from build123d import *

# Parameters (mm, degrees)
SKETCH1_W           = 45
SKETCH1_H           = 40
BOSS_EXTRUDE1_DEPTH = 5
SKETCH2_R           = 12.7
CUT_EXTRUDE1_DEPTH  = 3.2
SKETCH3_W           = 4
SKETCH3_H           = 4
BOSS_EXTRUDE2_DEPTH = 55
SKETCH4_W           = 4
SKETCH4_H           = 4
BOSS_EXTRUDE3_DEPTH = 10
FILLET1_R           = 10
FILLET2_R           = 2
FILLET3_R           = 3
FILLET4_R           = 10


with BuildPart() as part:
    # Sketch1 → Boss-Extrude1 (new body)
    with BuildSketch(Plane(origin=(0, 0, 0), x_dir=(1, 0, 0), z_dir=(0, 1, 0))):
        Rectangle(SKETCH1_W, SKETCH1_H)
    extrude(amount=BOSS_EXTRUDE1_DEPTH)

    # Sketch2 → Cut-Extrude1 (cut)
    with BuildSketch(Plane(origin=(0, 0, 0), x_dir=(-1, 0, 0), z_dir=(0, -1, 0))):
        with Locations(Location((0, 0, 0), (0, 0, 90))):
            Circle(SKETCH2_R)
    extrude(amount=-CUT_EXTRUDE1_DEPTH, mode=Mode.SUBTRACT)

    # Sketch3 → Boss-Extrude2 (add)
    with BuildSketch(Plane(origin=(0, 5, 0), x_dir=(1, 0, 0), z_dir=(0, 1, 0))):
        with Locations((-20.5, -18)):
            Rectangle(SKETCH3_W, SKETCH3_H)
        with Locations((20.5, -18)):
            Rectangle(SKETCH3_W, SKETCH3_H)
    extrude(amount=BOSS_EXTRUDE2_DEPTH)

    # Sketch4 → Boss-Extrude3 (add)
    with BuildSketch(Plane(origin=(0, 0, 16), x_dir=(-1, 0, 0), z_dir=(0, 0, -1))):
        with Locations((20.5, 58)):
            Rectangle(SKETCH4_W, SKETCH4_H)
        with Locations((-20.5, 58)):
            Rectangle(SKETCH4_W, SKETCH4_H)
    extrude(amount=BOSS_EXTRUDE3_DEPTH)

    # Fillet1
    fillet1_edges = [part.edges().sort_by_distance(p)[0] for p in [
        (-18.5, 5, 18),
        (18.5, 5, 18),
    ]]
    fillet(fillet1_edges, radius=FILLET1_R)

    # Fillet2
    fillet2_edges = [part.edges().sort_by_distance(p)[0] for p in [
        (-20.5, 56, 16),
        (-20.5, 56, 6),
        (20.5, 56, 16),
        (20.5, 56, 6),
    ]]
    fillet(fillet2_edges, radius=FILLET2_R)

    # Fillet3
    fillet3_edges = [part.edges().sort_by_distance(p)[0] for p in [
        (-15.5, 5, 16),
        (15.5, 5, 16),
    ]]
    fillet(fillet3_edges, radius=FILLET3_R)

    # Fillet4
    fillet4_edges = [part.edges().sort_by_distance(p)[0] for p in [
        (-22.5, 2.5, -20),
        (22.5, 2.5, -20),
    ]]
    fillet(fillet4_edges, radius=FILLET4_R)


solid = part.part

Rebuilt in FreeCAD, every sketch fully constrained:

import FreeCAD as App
import Part
import Sketcher


def edges_at(feature, points):
    """Names of the edges that pass closest to the given points."""
    edges = feature.Shape.Edges
    near = lambda p: min(range(len(edges)), key=lambda i: edges[i].distToShape(Part.Vertex(*p))[0])
    return sorted({f"Edge{near(p) + 1}" for p in points})


def add_polygon(sketch, points):
    """Adds a closed chain of lines whose ends are joined by coincident constraints."""
    first, n = sketch.GeometryCount, len(points)
    for a, b in zip(points, points[1:] + points[:1]):
        sketch.addGeometry(Part.LineSegment(App.Vector(*a, 0), App.Vector(*b, 0)), False)
    for i in range(n):
        sketch.addConstraint(Sketcher.Constraint("Coincident", first + i, 2, first + (i + 1) % n, 1))

doc = App.newDocument("Part")
body = doc.addObject("PartDesign::Body", "Body")

sketch1 = body.newObject("Sketcher::SketchObject", "Sketch")
sketch1.AttachmentSupport = (doc.getObject("XZ_Plane"), [""])
sketch1.MapMode = "FlatFace"
add_polygon(sketch1, [(-22, -20), (-22, 20), (22, 20), (22, -20)])
sketch1.addConstraint([
    Sketcher.Constraint("Vertical", 0),
    Sketcher.Constraint("Horizontal", 1),
    Sketcher.Constraint("Vertical", 2),
    Sketcher.Constraint("Horizontal", 3),
    Sketcher.Constraint("Symmetric", 0, 2, 2, 2, -1, 1),
    Sketcher.Constraint("DistanceX", 1, 1, 1, 2, 45.0),
    Sketcher.Constraint("DistanceY", 0, 1, 0, 2, 40.0),
])
pad1 = body.newObject("PartDesign::Pad", "Pad")
pad1.Profile = sketch1
pad1.Length = 5
pad1.Reversed = True

sketch2 = body.newObject("Sketcher::SketchObject", "Sketch001")
sketch2.AttachmentSupport = (doc.getObject("XZ_Plane"), [""])
sketch2.MapMode = "FlatFace"
sketch2.addGeometry(Part.Circle(App.Vector(0, 0, 0), App.Vector(0, 0, 1), 13), False)
sketch2.addConstraint([
    Sketcher.Constraint("Coincident", 0, 3, -1, 1),
    Sketcher.Constraint("Diameter", 0, 25.4),
])
pocket1 = body.newObject("PartDesign::Pocket", "Pocket")
pocket1.Profile = sketch2
pocket1.Length = 3.2

sketch3 = body.newObject("Sketcher::SketchObject", "Sketch002")
sketch3.AttachmentSupport = (doc.getObject("XZ_Plane"), [""])
sketch3.MapMode = "FlatFace"
sketch3.AttachmentOffset = App.Placement(App.Vector(0, 0, -5), App.Rotation())
add_polygon(sketch3, [(-22.5, 16), (-22.5, 20), (-18.5, 20), (-18.5, 16)])
add_polygon(sketch3, [(18.5, 16), (18.5, 20), (22.5, 20), (22.5, 16)])
sketch3.addConstraint([
    Sketcher.Constraint("Vertical", 0),
    Sketcher.Constraint("Horizontal", 1),
    Sketcher.Constraint("Vertical", 2),
    Sketcher.Constraint("Horizontal", 3),
    Sketcher.Constraint("Vertical", 4),
    Sketcher.Constraint("Horizontal", 5),
    Sketcher.Constraint("Vertical", 6),
    Sketcher.Constraint("Horizontal", 7),
    Sketcher.Constraint("Symmetric", 1, 2, 4, 2, -2),
    Sketcher.Constraint("Symmetric", 3, 2, 6, 2, -2),
    Sketcher.Constraint("Equal", 7, 0),
    Sketcher.Constraint("DistanceX", 1, 1, 1, 2, 4.0),
    Sketcher.Constraint("DistanceY", -1, 1, 0, 2, 20.0),
    Sketcher.Constraint("DistanceX", 1, 2, 4, 2, 37.0),
])
pad2 = body.newObject("PartDesign::Pad", "Pad001")
pad2.Profile = sketch3
pad2.Length = 55
pad2.Reversed = True

sketch4 = body.newObject("Sketcher::SketchObject", "Sketch003")
sketch4.AttachmentSupport = (doc.getObject("XY_Plane"), [""])
sketch4.MapMode = "FlatFace"
sketch4.AttachmentOffset = App.Placement(App.Vector(0, 0, 16), App.Rotation())
add_polygon(sketch4, [(-18.5, 60), (-18.5, 56), (-22.5, 56), (-22.5, 60)])
add_polygon(sketch4, [(22.5, 60), (22.5, 56), (18.5, 56), (18.5, 60)])
sketch4.addConstraint([
    Sketcher.Constraint("Vertical", 0),
    Sketcher.Constraint("Horizontal", 1),
    Sketcher.Constraint("Vertical", 2),
    Sketcher.Constraint("Horizontal", 3),
    Sketcher.Constraint("Vertical", 4),
    Sketcher.Constraint("Horizontal", 5),
    Sketcher.Constraint("Vertical", 6),
    Sketcher.Constraint("Horizontal", 7),
    Sketcher.Constraint("Symmetric", 1, 2, 4, 2, -2),
    Sketcher.Constraint("Symmetric", 3, 2, 6, 2, -2),
    Sketcher.Constraint("Equal", 7, 0),
    Sketcher.Constraint("DistanceX", 1, 2, 1, 1, 4.0),
    Sketcher.Constraint("DistanceY", -1, 1, 0, 2, 56.0),
    Sketcher.Constraint("DistanceX", 0, 2, 4, 2, 41.0),
])
pad3 = body.newObject("PartDesign::Pad", "Pad002")
pad3.Profile = sketch4
pad3.Length = 10
pad3.Reversed = True
doc.recompute()

fillet = body.newObject("PartDesign::Fillet", "Fillet")
fillet.Base = (pad3, edges_at(pad3, [(-18.5, 5, 18), (18.5, 5, 18)]))
fillet.Radius = 10
doc.recompute()

fillet2 = body.newObject("PartDesign::Fillet", "Fillet001")
fillet2.Base = (fillet, edges_at(fillet, [
    (-20.5, 56, 16),
    (-20.5, 56, 6),
    (20.5, 56, 16),
    (20.5, 56, 6),
]))
fillet2.Radius = 2
doc.recompute()

fillet3 = body.newObject("PartDesign::Fillet", "Fillet002")
fillet3.Base = (fillet2, edges_at(fillet2, [(-15.5, 5, 16), (15.5, 5, 16)]))
fillet3.Radius = 3
doc.recompute()

fillet4 = body.newObject("PartDesign::Fillet", "Fillet003")
fillet4.Base = (fillet3, edges_at(fillet3, [(-22.5, 2.5, -20), (22.5, 2.5, -20)]))
fillet4.Radius = 10

doc.recompute()
